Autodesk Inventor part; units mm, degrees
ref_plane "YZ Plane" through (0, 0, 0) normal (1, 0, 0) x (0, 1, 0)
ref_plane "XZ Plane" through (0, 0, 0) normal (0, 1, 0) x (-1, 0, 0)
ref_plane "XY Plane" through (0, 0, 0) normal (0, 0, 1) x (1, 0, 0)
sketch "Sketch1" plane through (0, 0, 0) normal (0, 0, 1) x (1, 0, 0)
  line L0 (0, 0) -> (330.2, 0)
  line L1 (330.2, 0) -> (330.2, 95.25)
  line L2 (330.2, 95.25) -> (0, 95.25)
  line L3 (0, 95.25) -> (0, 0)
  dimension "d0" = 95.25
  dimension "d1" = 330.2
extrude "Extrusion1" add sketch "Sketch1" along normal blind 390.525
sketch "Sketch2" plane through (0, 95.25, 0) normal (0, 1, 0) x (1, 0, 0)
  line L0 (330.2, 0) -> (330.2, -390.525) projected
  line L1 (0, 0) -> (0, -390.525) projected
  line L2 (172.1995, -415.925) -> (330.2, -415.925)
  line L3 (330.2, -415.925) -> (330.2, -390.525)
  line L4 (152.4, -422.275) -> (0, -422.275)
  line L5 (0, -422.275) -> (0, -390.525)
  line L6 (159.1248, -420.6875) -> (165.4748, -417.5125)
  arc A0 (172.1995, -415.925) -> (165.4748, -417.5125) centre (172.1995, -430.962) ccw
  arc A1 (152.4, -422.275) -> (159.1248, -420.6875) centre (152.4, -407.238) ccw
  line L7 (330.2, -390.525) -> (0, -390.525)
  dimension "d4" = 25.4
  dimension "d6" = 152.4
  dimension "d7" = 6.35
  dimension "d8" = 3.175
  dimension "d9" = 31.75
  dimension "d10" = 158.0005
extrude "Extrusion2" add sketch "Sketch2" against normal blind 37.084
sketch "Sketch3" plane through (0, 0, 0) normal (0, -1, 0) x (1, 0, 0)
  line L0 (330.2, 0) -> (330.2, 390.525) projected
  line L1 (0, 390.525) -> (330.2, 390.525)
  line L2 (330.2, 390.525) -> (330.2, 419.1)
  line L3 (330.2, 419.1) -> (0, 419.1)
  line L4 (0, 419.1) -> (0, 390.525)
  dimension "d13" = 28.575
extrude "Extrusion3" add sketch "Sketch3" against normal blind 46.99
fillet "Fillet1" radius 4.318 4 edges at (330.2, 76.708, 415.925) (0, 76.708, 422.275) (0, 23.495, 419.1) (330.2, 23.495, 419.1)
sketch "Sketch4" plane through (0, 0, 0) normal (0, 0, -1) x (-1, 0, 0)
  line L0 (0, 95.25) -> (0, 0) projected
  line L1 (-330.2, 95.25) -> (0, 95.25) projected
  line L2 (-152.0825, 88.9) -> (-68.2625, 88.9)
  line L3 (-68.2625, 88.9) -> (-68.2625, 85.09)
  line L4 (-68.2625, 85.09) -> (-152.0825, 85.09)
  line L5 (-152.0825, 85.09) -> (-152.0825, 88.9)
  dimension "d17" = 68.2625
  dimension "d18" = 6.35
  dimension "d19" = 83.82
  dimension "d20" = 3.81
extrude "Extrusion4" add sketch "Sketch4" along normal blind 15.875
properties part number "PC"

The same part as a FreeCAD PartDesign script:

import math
import FreeCAD as App
import Part
import Sketcher

V = App.Vector
Q = App.Units.Quantity


def edges_at(feature, points):
    """Names of the edges that pass closest to the given points."""
    edges = feature.Shape.Edges
    near = lambda p: min(range(len(edges)), key=lambda i: edges[i].distToShape(Part.Vertex(*p))[0])
    return sorted({f"Edge{near(p) + 1}" for p in points})

doc = App.newDocument("Part")
body = doc.addObject("PartDesign::Body", "Body")

sketch1 = body.newObject("Sketcher::SketchObject", "Sketch")
sketch1.AttachmentSupport = (doc.getObject("XY_Plane"), [""])
sketch1.MapMode = "FlatFace"
sketch1.addGeometry([
    Part.LineSegment(V(0, 95.25, 0), V(0, 0, 0)),
    Part.LineSegment(V(0, 0, 0), V(330.2, 0, 0)),
    Part.LineSegment(V(330.2, 0, 0), V(330.2, 95.25, 0)),
    Part.LineSegment(V(330.2, 95.25, 0), V(0, 95.25, 0)),
], False)
sketch1.addConstraint([
    Sketcher.Constraint("Coincident", 0, 2, 1, 1),
    Sketcher.Constraint("Coincident", 1, 2, 2, 1),
    Sketcher.Constraint("Coincident", 2, 2, 3, 1),
    Sketcher.Constraint("Coincident", 3, 2, 0, 1),
    Sketcher.Constraint("Vertical", 0),
    Sketcher.Constraint("Horizontal", 1),
    Sketcher.Constraint("Vertical", 2),
    Sketcher.Constraint("Horizontal", 3),
    Sketcher.Constraint("Coincident", 0, 2, -1, 1),
    Sketcher.Constraint("DistanceX", 1, 1, 1, 2, Q("13 in")),
    Sketcher.Constraint("DistanceY", 0, 2, 0, 1, Q("3.75 in")),
])
pad1 = body.newObject("PartDesign::Pad", "Pad")
pad1.Profile = sketch1
pad1.Length = Q("15.375 in")

sketch2 = body.newObject("Sketcher::SketchObject", "Sketch001")
sketch2.AttachmentSupport = (doc.getObject("XZ_Plane"), [""])
sketch2.MapMode = "FlatFace"
sketch2.AttachmentOffset = App.Placement(V(0, 0, -3.75 * 25.4), App.Rotation())
sketch2.addGeometry([
    Part.ArcOfCircle(Part.Circle(V(172.1995, 430.962, 0), V(0, 0, 1), 15.037), math.radians(-116.564881), math.radians(-90)),
    Part.LineSegment(V(172.1995, 415.925, 0), V(330.2, 415.925, 0)),
    Part.LineSegment(V(330.2, 415.925, 0), V(330.2, 390.525, 0)),
    Part.LineSegment(V(330.2, 390.525, 0), V(0, 390.525, 0)),
    Part.LineSegment(V(0, 390.525, 0), V(0, 422.275, 0)),
    Part.LineSegment(V(0, 422.275, 0), V(152.4, 422.275, 0)),
    Part.ArcOfCircle(Part.Circle(V(152.4, 407.238, 0), V(0, 0, 1), 15.037), math.radians(63.434778), math.radians(90)),
    Part.LineSegment(V(159.1248, 420.6875, 0), V(165.4748, 417.5125, 0)),
], False)
sketch2.addConstraint([
    Sketcher.Constraint("Tangent", 0, 2, 1, 1),
    Sketcher.Constraint("Coincident", 1, 2, 2, 1),
    Sketcher.Constraint("Coincident", 2, 2, 3, 1),
    Sketcher.Constraint("Coincident", 3, 2, 4, 1),
    Sketcher.Constraint("Coincident", 4, 2, 5, 1),
    Sketcher.Constraint("Tangent", 5, 2, 6, 2),
    Sketcher.Constraint("Tangent", 6, 1, 7, 1),
    Sketcher.Constraint("Tangent", 7, 2, 0, 1),
    Sketcher.Constraint("Horizontal", 1),
    Sketcher.Constraint("Vertical", 2),
    Sketcher.Constraint("Horizontal", 3),
    Sketcher.Constraint("Vertical", 4),
    Sketcher.Constraint("Horizontal", 5),
    Sketcher.Constraint("Equal", 0, 6),
    Sketcher.Constraint("PointOnObject", 3, 2, -2),
    Sketcher.Constraint("DistanceX", 5, 1, 5, 2, Q("6 in")),
    Sketcher.Constraint("DistanceY", 2, 2, 2, 1, Q("1 in")),
    Sketcher.Constraint("DistanceY", 4, 1, 4, 2, Q("1.25 in")),
    Sketcher.Constraint("DistanceX", 3, 2, 3, 1, Q("13 in")),
    Sketcher.Constraint("DistanceX", 6, 1, 7, 2, Q("0.25 in")),
    Sketcher.Constraint("DistanceX", 1, 1, 1, 2, Q("6.2205 in")),
    Sketcher.Constraint("DistanceY", -1, 1, 0, 3, Q("16.967 in")),
])
pad2 = body.newObject("PartDesign::Pad", "Pad001")
pad2.Profile = sketch2
pad2.Length = Q("1.46 in")

sketch3 = body.newObject("Sketcher::SketchObject", "Sketch002")
sketch3.AttachmentSupport = (doc.getObject("XZ_Plane"), [""])
sketch3.MapMode = "FlatFace"
sketch3.addGeometry([
    Part.LineSegment(V(0, 419.1, 0), V(0, 390.525, 0)),
    Part.LineSegment(V(0, 390.525, 0), V(330.2, 390.525, 0)),
    Part.LineSegment(V(330.2, 390.525, 0), V(330.2, 419.1, 0)),
    Part.LineSegment(V(330.2, 419.1, 0), V(0, 419.1, 0)),
], False)
sketch3.addConstraint([
    Sketcher.Constraint("Coincident", 0, 2, 1, 1),
    Sketcher.Constraint("Coincident", 1, 2, 2, 1),
    Sketcher.Constraint("Coincident", 2, 2, 3, 1),
    Sketcher.Constraint("Coincident", 3, 2, 0, 1),
    Sketcher.Constraint("Vertical", 0),
    Sketcher.Constraint("Horizontal", 1),
    Sketcher.Constraint("Vertical", 2),
    Sketcher.Constraint("Horizontal", 3),
    Sketcher.Constraint("PointOnObject", 0, 2, -2),
    Sketcher.Constraint("DistanceX", 1, 1, 1, 2, Q("13 in")),
    Sketcher.Constraint("DistanceY", 0, 2, 0, 1, Q("1.125 in")),
    Sketcher.Constraint("DistanceY", -1, 1, 2, 2, Q("16.5 in")),
])
pad3 = body.newObject("PartDesign::Pad", "Pad002")
pad3.Profile = sketch3
pad3.Length = Q("1.85 in")
pad3.Reversed = True
doc.recompute()

fillet = body.newObject("PartDesign::Fillet", "Fillet")
fillet.Base = (pad3, edges_at(pad3, [
    (330.2, 76.708, 415.925),
    (0, 76.708, 422.275),
    (0, 23.495, 419.1),
    (330.2, 23.495, 419.1),
]))
fillet.Radius = Q("0.17 in")

sketch4 = body.newObject("Sketcher::SketchObject", "Sketch003")
sketch4.AttachmentSupport = (doc.getObject("XY_Plane"), [""])
sketch4.MapMode = "FlatFace"
sketch4.addGeometry([
    Part.LineSegment(V(68.2625, 88.9, 0), V(152.0825, 88.9, 0)),
    Part.LineSegment(V(152.0825, 88.9, 0), V(152.0825, 85.09, 0)),
    Part.LineSegment(V(152.0825, 85.09, 0), V(68.2625, 85.09, 0)),
    Part.LineSegment(V(68.2625, 85.09, 0), V(68.2625, 88.9, 0)),
], False)
sketch4.addConstraint([
    Sketcher.Constraint("Coincident", 0, 2, 1, 1),
    Sketcher.Constraint("Coincident", 1, 2, 2, 1),
    Sketcher.Constraint("Coincident", 2, 2, 3, 1),
    Sketcher.Constraint("Coincident", 3, 2, 0, 1),
    Sketcher.Constraint("Horizontal", 0),
    Sketcher.Constraint("Vertical", 1),
    Sketcher.Constraint("Horizontal", 2),
    Sketcher.Constraint("Vertical", 3),
    Sketcher.Constraint("DistanceX", 0, 1, 0, 2, Q("3.3 in")),
    Sketcher.Constraint("DistanceY", 1, 2, 1, 1, Q("0.15 in")),
    Sketcher.Constraint("DistanceX", -1, 1, 2, 2, Q("2.6875 in")),
    Sketcher.Constraint("DistanceY", -1, 1, 0, 2, Q("3.5 in")),
])
pad4 = body.newObject("PartDesign::Pad", "Pad003")
pad4.Profile = sketch4
pad4.Length = Q("0.625 in")
pad4.Reversed = True

doc.recompute()
